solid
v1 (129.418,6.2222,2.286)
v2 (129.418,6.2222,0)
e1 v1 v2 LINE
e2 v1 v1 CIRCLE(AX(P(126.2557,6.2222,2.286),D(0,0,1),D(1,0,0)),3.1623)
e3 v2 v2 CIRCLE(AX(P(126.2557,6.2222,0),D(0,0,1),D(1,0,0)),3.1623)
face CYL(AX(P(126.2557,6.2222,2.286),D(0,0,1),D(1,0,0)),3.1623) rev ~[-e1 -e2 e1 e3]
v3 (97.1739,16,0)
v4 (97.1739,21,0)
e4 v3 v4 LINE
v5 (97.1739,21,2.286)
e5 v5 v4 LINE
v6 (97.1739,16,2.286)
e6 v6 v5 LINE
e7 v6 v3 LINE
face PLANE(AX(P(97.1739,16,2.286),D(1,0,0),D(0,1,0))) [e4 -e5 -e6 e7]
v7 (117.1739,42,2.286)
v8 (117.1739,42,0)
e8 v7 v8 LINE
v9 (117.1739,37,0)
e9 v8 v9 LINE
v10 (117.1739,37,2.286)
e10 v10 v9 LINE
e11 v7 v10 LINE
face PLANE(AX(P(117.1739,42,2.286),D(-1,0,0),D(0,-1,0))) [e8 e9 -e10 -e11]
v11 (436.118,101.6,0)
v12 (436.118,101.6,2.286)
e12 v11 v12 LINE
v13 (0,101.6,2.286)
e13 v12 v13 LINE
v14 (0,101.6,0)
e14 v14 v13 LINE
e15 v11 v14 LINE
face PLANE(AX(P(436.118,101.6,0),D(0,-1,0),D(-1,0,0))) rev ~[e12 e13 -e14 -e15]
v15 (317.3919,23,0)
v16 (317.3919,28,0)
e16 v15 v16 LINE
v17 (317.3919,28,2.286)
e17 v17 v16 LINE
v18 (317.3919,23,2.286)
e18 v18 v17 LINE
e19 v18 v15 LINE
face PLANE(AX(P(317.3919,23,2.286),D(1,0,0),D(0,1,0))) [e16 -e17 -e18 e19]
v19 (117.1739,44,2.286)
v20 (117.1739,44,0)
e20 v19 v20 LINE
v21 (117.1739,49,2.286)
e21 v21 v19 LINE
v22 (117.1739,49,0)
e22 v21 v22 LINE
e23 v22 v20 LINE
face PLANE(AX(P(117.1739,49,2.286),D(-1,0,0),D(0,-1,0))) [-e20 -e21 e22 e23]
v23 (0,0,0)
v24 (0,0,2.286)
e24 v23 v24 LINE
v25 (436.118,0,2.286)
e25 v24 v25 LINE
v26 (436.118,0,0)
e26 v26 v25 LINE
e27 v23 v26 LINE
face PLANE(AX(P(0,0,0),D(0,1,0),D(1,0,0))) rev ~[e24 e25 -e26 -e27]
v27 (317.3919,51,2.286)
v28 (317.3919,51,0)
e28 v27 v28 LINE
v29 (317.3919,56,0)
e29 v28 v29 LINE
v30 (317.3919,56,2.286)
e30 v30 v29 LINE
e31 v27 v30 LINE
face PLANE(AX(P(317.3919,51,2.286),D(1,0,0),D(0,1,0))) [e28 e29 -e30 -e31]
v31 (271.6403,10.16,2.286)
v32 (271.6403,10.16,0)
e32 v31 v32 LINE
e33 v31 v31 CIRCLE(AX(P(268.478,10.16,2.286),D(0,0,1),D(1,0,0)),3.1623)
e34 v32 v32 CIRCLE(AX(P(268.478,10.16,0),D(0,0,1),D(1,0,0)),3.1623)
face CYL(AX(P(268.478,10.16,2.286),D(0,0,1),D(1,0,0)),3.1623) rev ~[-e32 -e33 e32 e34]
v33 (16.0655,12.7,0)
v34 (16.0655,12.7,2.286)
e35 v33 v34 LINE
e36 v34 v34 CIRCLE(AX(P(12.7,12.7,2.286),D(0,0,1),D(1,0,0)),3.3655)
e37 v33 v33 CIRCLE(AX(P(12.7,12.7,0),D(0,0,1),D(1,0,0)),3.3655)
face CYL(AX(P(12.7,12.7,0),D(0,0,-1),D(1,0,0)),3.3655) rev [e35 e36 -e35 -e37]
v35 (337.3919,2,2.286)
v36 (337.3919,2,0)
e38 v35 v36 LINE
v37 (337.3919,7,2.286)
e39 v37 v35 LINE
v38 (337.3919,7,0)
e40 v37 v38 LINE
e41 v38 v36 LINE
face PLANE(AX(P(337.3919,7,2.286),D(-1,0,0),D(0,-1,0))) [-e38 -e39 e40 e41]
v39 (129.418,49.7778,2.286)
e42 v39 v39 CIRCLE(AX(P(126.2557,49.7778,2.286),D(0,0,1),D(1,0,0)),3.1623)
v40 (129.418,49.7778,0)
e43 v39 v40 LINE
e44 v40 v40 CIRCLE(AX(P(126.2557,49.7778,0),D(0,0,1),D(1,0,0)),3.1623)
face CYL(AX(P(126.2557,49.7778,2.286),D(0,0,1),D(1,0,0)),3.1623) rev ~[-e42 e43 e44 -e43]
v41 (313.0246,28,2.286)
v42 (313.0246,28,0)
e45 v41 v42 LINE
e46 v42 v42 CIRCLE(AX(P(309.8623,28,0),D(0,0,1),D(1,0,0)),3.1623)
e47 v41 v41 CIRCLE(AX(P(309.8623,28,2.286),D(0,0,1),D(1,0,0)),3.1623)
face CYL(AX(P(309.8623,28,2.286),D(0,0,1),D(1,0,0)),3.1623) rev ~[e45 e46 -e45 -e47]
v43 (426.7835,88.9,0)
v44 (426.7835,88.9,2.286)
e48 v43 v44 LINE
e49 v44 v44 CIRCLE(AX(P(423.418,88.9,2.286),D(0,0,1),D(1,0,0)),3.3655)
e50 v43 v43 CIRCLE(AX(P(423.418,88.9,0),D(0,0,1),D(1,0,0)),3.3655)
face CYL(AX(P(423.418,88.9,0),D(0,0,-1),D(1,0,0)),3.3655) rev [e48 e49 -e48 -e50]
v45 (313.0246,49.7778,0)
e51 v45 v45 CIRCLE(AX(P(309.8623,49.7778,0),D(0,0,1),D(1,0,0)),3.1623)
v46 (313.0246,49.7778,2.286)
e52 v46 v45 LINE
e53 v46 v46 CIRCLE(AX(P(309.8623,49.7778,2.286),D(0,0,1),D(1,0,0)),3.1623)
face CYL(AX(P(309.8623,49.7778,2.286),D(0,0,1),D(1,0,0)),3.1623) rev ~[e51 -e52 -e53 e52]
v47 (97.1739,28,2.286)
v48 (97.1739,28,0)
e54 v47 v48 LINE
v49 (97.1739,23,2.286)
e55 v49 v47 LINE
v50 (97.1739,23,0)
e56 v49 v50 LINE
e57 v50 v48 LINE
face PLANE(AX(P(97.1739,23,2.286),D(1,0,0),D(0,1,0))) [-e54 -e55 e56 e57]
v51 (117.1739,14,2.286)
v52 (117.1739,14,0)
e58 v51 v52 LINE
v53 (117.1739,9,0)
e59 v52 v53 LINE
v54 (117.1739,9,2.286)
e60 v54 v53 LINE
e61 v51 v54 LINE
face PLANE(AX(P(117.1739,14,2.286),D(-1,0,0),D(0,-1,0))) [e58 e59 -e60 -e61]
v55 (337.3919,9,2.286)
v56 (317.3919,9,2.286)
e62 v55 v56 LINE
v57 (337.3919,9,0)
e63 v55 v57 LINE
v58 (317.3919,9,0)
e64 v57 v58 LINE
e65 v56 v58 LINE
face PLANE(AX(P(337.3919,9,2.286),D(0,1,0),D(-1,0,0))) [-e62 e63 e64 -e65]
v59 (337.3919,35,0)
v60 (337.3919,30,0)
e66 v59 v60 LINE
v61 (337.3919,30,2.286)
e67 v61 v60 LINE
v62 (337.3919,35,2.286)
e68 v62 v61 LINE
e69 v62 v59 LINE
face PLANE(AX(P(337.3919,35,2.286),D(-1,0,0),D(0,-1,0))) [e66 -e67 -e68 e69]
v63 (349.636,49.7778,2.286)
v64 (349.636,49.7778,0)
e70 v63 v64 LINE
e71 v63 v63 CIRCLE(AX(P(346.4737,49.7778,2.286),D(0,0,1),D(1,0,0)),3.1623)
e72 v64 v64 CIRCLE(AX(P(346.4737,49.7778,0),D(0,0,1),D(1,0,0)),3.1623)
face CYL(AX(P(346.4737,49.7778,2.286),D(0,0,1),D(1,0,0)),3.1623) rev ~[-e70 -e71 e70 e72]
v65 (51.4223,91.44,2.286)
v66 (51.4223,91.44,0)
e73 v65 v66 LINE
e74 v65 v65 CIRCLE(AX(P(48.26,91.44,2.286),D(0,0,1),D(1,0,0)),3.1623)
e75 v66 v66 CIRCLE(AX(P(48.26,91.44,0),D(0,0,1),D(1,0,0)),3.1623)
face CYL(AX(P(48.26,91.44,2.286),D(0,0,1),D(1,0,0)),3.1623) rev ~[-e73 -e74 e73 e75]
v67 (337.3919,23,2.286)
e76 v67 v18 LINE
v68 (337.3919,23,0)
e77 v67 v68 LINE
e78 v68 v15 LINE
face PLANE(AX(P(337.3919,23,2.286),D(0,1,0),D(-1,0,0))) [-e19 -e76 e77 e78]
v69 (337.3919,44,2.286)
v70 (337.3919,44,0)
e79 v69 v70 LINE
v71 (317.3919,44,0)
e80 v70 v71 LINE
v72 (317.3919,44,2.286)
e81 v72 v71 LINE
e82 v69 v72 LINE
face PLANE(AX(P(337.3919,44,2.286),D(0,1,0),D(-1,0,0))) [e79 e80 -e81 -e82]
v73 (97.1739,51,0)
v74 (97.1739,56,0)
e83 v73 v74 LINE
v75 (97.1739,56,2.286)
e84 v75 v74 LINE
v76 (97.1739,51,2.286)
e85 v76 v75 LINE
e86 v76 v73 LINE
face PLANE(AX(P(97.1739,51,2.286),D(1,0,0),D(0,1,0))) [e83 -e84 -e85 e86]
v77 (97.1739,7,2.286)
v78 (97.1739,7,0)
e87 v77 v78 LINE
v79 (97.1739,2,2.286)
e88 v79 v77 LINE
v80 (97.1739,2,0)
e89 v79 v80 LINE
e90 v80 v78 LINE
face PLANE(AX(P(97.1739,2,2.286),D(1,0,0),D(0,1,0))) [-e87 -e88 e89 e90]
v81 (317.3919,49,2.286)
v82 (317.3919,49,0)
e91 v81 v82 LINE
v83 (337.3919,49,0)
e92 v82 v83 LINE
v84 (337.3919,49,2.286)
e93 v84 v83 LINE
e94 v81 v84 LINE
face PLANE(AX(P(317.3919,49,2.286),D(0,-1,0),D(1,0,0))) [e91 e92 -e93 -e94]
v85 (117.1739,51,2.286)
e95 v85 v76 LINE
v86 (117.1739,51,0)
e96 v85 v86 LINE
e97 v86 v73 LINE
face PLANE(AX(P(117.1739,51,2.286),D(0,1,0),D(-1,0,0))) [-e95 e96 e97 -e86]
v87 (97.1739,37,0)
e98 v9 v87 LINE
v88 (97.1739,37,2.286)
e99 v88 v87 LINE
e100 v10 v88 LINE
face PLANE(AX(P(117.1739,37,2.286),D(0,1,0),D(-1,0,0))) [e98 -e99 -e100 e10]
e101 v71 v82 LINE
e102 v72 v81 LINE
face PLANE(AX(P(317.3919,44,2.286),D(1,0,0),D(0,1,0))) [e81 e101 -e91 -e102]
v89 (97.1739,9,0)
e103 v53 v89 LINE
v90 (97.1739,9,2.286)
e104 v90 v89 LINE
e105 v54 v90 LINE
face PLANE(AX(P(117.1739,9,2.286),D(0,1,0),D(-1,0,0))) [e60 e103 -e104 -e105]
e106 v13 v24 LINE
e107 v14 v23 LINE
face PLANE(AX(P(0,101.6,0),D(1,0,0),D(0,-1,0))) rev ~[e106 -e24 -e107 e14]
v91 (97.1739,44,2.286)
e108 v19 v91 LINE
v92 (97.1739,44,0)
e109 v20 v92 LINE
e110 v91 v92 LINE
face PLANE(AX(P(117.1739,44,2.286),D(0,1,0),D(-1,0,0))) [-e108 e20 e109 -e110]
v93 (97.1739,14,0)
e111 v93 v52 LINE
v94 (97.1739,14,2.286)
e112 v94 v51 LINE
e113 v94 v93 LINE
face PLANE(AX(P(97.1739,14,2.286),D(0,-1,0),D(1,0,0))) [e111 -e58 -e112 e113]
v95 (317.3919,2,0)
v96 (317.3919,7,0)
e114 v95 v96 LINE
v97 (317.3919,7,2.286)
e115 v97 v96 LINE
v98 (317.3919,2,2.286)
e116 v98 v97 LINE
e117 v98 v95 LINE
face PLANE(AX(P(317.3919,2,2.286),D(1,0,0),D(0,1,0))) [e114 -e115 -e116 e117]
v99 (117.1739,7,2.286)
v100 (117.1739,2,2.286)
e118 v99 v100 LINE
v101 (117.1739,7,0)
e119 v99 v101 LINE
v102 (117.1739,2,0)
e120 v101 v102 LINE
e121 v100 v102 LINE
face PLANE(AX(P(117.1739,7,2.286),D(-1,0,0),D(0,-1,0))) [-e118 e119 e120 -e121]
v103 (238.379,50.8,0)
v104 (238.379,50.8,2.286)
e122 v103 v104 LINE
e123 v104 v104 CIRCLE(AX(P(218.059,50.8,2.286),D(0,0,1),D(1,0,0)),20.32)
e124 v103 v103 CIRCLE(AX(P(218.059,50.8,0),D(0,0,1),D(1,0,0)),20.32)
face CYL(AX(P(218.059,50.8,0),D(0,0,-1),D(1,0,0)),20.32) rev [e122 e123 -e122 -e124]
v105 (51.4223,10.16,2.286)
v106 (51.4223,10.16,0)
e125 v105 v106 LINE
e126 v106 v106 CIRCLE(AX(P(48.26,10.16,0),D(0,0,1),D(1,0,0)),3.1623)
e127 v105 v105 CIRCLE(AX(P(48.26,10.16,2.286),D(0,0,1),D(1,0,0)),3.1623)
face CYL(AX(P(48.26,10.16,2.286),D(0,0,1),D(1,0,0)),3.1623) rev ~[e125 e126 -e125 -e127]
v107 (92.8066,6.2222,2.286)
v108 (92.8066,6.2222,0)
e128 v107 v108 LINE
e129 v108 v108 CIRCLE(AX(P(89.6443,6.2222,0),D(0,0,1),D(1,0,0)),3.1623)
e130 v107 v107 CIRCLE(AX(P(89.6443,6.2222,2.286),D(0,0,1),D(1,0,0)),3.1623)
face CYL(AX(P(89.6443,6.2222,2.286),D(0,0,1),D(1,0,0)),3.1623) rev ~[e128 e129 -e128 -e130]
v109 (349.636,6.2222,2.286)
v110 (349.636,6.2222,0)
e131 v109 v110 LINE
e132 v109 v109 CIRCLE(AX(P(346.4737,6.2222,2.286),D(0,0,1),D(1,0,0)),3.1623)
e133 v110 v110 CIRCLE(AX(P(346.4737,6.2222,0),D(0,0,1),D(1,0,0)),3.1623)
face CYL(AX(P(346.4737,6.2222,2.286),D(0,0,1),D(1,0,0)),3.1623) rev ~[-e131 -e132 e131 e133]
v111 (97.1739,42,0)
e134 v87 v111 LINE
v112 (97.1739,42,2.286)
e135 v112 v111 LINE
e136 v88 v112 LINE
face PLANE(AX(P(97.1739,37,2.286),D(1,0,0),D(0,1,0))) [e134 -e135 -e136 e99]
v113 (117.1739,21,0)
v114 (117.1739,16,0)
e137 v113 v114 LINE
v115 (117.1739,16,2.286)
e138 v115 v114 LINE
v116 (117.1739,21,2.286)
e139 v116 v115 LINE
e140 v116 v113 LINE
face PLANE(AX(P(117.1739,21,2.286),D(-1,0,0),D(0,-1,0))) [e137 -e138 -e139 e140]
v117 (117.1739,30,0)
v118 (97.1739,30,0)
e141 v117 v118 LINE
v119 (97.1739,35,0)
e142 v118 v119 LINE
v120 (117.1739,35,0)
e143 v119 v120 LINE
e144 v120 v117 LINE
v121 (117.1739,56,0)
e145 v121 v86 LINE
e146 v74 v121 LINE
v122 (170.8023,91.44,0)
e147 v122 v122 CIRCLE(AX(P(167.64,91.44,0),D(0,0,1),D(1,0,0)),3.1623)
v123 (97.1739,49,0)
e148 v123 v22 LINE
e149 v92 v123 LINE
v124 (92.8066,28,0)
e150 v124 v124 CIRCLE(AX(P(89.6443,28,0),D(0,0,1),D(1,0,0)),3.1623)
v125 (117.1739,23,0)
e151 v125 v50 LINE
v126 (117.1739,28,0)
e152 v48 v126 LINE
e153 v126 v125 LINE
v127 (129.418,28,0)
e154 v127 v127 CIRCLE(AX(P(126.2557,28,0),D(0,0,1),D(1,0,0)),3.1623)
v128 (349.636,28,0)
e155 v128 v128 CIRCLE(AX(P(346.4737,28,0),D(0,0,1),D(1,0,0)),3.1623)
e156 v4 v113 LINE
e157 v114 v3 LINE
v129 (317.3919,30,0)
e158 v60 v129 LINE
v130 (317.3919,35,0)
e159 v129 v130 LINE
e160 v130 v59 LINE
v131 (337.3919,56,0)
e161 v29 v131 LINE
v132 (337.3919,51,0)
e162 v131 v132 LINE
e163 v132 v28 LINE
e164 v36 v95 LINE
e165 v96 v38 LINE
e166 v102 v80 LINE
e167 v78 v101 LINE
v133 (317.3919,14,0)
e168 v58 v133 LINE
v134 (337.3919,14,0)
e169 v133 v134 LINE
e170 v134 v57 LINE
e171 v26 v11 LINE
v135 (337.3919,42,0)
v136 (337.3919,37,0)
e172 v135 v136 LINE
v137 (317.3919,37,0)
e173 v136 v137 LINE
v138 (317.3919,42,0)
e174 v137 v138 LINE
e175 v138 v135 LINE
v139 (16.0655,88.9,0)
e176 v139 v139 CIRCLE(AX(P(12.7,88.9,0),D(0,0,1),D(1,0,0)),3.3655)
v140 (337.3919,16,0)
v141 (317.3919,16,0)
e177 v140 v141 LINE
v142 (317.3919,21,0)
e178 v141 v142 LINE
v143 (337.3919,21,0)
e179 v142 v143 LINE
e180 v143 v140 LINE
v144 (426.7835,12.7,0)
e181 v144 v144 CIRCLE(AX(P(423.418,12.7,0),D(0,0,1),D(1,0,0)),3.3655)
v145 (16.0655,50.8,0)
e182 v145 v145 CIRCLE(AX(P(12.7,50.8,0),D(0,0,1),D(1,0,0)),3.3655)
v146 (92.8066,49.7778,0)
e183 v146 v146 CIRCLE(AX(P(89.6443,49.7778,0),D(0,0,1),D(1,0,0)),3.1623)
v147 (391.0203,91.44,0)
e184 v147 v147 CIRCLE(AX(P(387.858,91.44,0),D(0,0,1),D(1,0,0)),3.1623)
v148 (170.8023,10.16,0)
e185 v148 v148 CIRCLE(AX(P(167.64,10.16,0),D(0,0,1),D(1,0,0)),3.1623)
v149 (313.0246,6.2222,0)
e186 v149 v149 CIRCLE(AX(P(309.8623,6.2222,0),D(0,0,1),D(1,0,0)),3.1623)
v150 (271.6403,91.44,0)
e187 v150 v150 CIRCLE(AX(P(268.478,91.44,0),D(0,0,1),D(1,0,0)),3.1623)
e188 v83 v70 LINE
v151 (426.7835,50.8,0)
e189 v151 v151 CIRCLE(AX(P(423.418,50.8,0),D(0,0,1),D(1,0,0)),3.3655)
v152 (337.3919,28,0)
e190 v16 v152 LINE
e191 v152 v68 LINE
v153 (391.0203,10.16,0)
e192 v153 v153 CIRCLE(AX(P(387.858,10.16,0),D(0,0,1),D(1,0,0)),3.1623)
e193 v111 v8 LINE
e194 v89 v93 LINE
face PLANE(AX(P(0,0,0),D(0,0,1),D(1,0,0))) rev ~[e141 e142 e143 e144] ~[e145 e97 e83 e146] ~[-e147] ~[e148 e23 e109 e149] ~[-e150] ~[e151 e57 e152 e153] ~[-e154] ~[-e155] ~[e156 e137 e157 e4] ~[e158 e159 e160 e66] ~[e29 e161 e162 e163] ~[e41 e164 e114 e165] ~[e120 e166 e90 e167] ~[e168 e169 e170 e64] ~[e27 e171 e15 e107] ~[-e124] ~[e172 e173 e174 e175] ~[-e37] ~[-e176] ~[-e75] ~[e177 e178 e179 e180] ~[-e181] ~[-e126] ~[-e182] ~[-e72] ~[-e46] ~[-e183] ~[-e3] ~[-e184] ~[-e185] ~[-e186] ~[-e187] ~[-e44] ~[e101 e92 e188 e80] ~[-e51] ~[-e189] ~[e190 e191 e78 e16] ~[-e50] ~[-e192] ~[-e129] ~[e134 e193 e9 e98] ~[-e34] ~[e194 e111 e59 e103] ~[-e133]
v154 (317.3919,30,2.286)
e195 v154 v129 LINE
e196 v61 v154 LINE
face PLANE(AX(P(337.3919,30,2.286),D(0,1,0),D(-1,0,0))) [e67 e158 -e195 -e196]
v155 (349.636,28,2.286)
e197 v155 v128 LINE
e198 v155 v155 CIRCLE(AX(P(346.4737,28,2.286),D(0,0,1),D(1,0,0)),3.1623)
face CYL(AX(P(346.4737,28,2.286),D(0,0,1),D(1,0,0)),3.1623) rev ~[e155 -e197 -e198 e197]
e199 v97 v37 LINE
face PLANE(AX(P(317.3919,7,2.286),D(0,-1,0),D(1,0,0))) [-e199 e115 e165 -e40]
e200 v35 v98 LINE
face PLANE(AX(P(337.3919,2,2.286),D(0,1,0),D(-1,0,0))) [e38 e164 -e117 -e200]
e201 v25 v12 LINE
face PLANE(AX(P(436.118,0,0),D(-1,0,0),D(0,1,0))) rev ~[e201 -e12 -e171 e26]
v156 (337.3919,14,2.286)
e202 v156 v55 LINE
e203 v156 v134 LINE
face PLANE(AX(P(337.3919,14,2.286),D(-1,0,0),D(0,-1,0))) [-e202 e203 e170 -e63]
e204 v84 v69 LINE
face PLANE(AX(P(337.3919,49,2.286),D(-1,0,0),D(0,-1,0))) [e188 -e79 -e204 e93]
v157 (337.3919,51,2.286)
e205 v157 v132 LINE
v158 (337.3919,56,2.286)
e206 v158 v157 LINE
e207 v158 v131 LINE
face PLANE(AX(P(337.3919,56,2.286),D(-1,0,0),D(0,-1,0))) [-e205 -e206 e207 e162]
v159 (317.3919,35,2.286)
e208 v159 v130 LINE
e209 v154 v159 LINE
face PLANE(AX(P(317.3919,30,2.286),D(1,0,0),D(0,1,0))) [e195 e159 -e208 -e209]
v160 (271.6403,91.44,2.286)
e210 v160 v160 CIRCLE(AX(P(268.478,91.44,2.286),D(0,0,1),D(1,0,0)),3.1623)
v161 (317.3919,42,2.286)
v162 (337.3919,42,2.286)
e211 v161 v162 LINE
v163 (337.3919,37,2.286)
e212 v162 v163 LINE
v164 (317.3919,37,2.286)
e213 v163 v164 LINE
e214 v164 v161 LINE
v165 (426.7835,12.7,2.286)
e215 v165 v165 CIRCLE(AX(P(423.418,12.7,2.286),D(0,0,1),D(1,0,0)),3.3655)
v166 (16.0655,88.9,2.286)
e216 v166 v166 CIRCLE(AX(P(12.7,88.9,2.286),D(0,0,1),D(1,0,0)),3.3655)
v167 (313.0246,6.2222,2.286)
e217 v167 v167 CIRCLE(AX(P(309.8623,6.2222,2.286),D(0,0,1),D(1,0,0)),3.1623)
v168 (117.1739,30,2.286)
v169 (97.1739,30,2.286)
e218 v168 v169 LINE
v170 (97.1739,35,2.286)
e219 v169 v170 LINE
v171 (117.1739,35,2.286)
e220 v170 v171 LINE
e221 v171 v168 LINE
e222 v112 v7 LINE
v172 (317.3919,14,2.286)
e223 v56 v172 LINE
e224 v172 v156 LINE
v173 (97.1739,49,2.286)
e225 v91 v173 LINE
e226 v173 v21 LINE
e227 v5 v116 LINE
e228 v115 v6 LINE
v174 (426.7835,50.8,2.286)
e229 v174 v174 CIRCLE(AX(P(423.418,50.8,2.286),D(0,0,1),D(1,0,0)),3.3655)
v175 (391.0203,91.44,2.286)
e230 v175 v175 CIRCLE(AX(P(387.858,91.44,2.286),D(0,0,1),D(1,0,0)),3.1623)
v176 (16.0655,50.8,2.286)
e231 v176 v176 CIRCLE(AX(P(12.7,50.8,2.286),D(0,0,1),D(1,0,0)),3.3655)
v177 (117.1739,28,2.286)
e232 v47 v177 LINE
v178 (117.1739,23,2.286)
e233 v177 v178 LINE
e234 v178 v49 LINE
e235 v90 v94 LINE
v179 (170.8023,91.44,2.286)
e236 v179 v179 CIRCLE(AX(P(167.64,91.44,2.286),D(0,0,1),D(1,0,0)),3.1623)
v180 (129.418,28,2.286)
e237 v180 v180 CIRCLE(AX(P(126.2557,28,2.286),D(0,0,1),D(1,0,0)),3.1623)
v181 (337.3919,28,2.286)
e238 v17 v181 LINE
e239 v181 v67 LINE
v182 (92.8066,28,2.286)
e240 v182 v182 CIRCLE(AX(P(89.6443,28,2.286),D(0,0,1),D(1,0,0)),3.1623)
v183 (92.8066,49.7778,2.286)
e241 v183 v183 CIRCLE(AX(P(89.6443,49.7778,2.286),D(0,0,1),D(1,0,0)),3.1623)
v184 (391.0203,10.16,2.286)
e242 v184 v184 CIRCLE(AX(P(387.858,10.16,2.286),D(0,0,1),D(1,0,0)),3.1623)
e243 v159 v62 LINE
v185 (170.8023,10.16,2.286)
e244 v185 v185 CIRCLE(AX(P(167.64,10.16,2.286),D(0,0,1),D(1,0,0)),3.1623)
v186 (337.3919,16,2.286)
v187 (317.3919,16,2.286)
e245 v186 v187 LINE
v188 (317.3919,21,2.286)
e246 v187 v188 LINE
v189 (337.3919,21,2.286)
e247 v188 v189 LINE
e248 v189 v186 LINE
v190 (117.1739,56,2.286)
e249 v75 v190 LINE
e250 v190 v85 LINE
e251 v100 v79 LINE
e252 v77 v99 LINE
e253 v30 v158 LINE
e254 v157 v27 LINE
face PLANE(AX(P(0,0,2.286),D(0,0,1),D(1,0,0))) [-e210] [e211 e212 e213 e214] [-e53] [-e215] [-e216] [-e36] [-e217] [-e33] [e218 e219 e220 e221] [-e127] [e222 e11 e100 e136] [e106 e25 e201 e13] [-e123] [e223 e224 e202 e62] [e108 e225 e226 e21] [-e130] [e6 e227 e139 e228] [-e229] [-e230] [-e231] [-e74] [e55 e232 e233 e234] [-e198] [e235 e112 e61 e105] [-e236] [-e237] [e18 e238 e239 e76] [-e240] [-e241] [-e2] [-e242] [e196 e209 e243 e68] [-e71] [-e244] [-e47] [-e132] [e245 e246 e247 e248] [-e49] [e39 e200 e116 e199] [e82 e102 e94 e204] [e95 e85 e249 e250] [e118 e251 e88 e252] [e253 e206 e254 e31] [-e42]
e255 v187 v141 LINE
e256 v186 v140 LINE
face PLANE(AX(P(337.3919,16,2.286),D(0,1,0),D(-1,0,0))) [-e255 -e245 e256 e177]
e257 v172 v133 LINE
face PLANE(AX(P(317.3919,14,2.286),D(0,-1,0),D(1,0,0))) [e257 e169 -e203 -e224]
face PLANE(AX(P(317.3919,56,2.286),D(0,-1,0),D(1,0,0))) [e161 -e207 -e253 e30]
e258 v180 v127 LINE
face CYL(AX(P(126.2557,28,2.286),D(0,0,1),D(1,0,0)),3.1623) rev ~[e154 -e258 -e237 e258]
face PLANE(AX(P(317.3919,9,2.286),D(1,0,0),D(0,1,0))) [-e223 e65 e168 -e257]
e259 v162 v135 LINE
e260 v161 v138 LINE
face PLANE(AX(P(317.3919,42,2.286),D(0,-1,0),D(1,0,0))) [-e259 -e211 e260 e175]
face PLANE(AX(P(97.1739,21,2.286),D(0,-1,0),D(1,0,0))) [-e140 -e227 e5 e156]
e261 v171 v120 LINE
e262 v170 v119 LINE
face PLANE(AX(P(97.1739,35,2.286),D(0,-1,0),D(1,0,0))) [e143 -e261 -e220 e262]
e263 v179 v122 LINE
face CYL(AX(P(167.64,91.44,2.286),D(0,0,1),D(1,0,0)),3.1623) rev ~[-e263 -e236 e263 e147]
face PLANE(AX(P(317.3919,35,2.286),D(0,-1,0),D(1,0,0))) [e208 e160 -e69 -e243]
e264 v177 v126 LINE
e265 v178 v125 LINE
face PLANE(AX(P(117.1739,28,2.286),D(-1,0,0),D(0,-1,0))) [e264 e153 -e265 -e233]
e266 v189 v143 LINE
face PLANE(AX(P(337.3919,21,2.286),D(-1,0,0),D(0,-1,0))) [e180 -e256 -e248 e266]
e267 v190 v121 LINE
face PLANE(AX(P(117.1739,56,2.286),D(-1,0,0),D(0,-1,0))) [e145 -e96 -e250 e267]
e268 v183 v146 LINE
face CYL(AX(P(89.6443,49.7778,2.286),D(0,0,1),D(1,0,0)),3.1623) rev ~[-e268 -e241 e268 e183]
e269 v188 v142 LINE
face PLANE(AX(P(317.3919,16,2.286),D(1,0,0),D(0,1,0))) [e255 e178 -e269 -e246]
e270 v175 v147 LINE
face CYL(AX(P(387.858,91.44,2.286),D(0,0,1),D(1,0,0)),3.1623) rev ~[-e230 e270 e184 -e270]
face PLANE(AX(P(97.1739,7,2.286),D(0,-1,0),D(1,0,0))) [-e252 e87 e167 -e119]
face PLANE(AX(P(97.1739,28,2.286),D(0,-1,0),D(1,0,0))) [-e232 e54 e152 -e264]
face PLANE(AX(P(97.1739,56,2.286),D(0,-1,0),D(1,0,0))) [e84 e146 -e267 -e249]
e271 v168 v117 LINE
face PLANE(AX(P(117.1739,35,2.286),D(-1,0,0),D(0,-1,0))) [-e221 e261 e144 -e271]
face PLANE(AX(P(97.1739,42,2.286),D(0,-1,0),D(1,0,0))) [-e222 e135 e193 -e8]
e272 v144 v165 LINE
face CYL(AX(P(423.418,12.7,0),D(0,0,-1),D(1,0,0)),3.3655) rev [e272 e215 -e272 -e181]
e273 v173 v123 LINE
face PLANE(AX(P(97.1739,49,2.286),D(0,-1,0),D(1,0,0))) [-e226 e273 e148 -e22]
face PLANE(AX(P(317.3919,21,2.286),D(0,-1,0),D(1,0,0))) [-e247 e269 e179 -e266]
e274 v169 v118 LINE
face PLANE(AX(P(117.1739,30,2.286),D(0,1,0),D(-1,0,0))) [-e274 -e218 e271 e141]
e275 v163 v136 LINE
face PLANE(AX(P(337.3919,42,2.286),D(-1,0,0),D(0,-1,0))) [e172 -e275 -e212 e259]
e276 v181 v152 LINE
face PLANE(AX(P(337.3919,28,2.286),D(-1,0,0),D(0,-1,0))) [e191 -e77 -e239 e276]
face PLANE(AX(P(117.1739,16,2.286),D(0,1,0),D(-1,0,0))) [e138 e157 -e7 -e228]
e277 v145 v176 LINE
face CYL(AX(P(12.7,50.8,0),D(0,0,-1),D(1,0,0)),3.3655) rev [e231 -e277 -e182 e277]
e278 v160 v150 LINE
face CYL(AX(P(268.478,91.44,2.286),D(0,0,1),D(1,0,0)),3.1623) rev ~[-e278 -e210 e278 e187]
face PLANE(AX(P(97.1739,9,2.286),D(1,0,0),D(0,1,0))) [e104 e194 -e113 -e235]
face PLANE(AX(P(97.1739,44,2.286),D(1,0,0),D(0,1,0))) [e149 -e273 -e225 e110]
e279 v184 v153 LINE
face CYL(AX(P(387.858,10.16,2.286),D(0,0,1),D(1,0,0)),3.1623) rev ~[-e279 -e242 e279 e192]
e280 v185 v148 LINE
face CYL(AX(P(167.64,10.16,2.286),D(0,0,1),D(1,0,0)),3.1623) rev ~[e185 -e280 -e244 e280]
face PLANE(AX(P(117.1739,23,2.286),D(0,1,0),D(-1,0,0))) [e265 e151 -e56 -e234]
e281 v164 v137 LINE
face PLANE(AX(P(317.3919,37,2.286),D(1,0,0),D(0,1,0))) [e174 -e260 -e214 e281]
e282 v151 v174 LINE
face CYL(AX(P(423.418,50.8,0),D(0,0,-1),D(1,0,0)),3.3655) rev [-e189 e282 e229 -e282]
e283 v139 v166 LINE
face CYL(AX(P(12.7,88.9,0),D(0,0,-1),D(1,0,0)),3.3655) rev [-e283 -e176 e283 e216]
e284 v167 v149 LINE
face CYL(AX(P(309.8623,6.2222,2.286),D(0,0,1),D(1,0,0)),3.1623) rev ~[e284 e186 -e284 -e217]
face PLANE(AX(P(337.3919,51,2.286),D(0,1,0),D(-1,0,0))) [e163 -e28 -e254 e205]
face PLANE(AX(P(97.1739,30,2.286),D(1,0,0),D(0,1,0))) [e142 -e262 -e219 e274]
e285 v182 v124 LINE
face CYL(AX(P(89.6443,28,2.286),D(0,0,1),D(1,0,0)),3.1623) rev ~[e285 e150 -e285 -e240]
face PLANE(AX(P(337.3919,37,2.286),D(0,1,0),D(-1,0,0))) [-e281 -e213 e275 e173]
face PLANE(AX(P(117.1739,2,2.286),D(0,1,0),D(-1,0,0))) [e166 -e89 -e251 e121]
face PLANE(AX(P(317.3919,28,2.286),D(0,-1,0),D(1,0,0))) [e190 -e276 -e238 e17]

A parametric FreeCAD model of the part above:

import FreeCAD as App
import Part
import Sketcher
from FreeCAD import Vector
Q = App.Units.Quantity

doc = App.newDocument("Part")
params = doc.addObject("Spreadsheet::Sheet", "Params")
for row, (alias, value) in enumerate([
    ("sketch1_diameter", "1.6 in"),
    ("sketch1_height", "4 in"),
    ("sketch1_diameter2", "0.265 in"),
    ("sketch1_width", "17.17 in"),
    ("pad1_length", "0.09 in"),
    ("sketch2_diameter", "0.249 in"),
    ("pocket1_length", "0.09 in"),
    ("sketch3_diameter", "0.249 in"),
    ("pocket2_length", "0.249 in"),
], start=1):
    params.set(f"A{row}", alias)
    params.set(f"B{row}", "=" + value)
    params.setAlias(f"B{row}", alias)

body = doc.addObject("PartDesign::Body", "Body")

sketch1 = body.newObject("Sketcher::SketchObject", "Sketch")
sketch1.AttachmentSupport = (doc.getObject("XY_Plane"), [""])
sketch1.MapMode = "FlatFace"
sketch1.addGeometry([
    Part.LineSegment(Vector(0, 101.6, 0), Vector(0, 0, 0)),
    Part.LineSegment(Vector(0, 0, 0), Vector(436.118, 0, 0)),
    Part.LineSegment(Vector(436.118, 0, 0), Vector(436.118, 101.6, 0)),
    Part.LineSegment(Vector(436.118, 101.6, 0), Vector(0, 101.6, 0)),
    Part.Circle(Vector(12.7, 12.7, 0), Vector(0, 0, 1), 3.3655),
    Part.Circle(Vector(12.7, 50.8, 0), Vector(0, 0, 1), 3.3655),
    Part.Circle(Vector(423.418, 12.7, 0), Vector(0, 0, 1), 3.3655),
    Part.Circle(Vector(218.059, 50.8, 0), Vector(0, 0, 1), 20.32),
    Part.Circle(Vector(423.418, 50.8, 0), Vector(0, 0, 1), 3.3655),
    Part.Circle(Vector(12.7, 88.9, 0), Vector(0, 0, 1), 3.3655),
    Part.Circle(Vector(423.418, 88.9, 0), Vector(0, 0, 1), 3.3655),
], False)
sketch1.addConstraint([
    Sketcher.Constraint("Coincident", 0, 2, 1, 1),
    Sketcher.Constraint("Coincident", 1, 2, 2, 1),
    Sketcher.Constraint("Coincident", 2, 2, 3, 1),
    Sketcher.Constraint("Coincident", 3, 2, 0, 1),
    Sketcher.Constraint("Vertical", 0),
    Sketcher.Constraint("Horizontal", 1),
    Sketcher.Constraint("Vertical", 2),
    Sketcher.Constraint("Horizontal", 3),
    Sketcher.Constraint("Coincident", 0, 2, -1, 1),
    Sketcher.Constraint("Equal", 4, 5),
    Sketcher.Constraint("Equal", 5, 6),
    Sketcher.Constraint("Equal", 6, 8),
    Sketcher.Constraint("Equal", 8, 9),
    Sketcher.Constraint("Equal", 9, 10),
    Sketcher.Constraint("Horizontal", 4, 3, 6, 3),
    Sketcher.Constraint("Horizontal", 5, 3, 7, 3),
    Sketcher.Constraint("Horizontal", 7, 3, 8, 3),
    Sketcher.Constraint("Horizontal", 9, 3, 10, 3),
    Sketcher.Constraint("Vertical", 4, 3, 5, 3),
    Sketcher.Constraint("Vertical", 6, 3, 8, 3),
    Sketcher.Constraint("Vertical", 5, 3, 9, 3),
    Sketcher.Constraint("Vertical", 8, 3, 10, 3),
    Sketcher.Constraint("Diameter", 7, Q("1.6 in")),
    Sketcher.Constraint("DistanceY", 0, 2, 0, 1, Q("4 in")),
    Sketcher.Constraint("Diameter", 4, Q("0.265 in")),
    Sketcher.Constraint("DistanceY", -1, 1, 5, 3, Q("2 in")),
    Sketcher.Constraint("DistanceX", 1, 1, 1, 2, Q("17.17 in")),
    Sketcher.Constraint("DistanceX", -1, 1, 4, 3, Q("0.5 in")),
    Sketcher.Constraint("DistanceY", -1, 1, 4, 3, Q("0.5 in")),
    Sketcher.Constraint("DistanceY", 5, 3, 9, 3, Q("1.5 in")),
    Sketcher.Constraint("DistanceX", 6, 3, 1, 2, Q("0.5 in")),
    Sketcher.Constraint("DistanceX", -1, 1, 7, 3, Q("8.585 in")),
])
sketch1.setExpression("Constraints[22]", "Params.sketch1_diameter")
sketch1.setExpression("Constraints[23]", "Params.sketch1_height")
sketch1.setExpression("Constraints[24]", "Params.sketch1_diameter2")
sketch1.setExpression("Constraints[26]", "Params.sketch1_width")
pad1 = body.newObject("PartDesign::Pad", "Pad")
pad1.Profile = sketch1
pad1.setExpression("Length", "Params.pad1_length")

sketch2 = body.newObject("Sketcher::SketchObject", "Sketch001")
sketch2.AttachmentSupport = (doc.getObject("XY_Plane"), [""])
sketch2.MapMode = "FlatFace"
sketch2.AttachmentOffset = App.Placement(Vector(0, 0, 0.09 * 25.4), App.Rotation())
sketch2.addGeometry([
    Part.LineSegment(Vector(117.1739, 7, 0), Vector(97.1739, 7, 0)),
    Part.LineSegment(Vector(97.1739, 7, 0), Vector(97.1739, 2, 0)),
    Part.LineSegment(Vector(97.1739, 2, 0), Vector(117.1739, 2, 0)),
    Part.LineSegment(Vector(117.1739, 2, 0), Vector(117.1739, 7, 0)),
    Part.LineSegment(Vector(117.1739, 14, 0), Vector(97.1739, 14, 0)),
    Part.LineSegment(Vector(97.1739, 14, 0), Vector(97.1739, 9, 0)),
    Part.LineSegment(Vector(97.1739, 9, 0), Vector(117.1739, 9, 0)),
    Part.LineSegment(Vector(117.1739, 9, 0), Vector(117.1739, 14, 0)),
    Part.LineSegment(Vector(117.1739, 21, 0), Vector(97.1739, 21, 0)),
    Part.LineSegment(Vector(97.1739, 21, 0), Vector(97.1739, 16, 0)),
    Part.LineSegment(Vector(97.1739, 16, 0), Vector(117.1739, 16, 0)),
    Part.LineSegment(Vector(117.1739, 16, 0), Vector(117.1739, 21, 0)),
    Part.LineSegment(Vector(117.1739, 28, 0), Vector(97.1739, 28, 0)),
    Part.LineSegment(Vector(97.1739, 28, 0), Vector(97.1739, 23, 0)),
    Part.LineSegment(Vector(97.1739, 23, 0), Vector(117.1739, 23, 0)),
    Part.LineSegment(Vector(117.1739, 23, 0), Vector(117.1739, 28, 0)),
    Part.LineSegment(Vector(117.1739, 35, 0), Vector(97.1739, 35, 0)),
    Part.LineSegment(Vector(97.1739, 35, 0), Vector(97.1739, 30, 0)),
    Part.LineSegment(Vector(97.1739, 30, 0), Vector(117.1739, 30, 0)),
    Part.LineSegment(Vector(117.1739, 30, 0), Vector(117.1739, 35, 0)),
    Part.LineSegment(Vector(117.1739, 42, 0), Vector(97.1739, 42, 0)),
    Part.LineSegment(Vector(97.1739, 42, 0), Vector(97.1739, 37, 0)),
    Part.LineSegment(Vector(97.1739, 37, 0), Vector(117.1739, 37, 0)),
    Part.LineSegment(Vector(117.1739, 37, 0), Vector(117.1739, 42, 0)),
    Part.Circle(Vector(126.2557, 6.2222, 0), Vector(0, 0, 1), 3.1623),
    Part.Circle(Vector(126.2557, 28, 0), Vector(0, 0, 1), 3.1623),
    Part.Circle(Vector(126.2557, 49.7778, 0), Vector(0, 0, 1), 3.1623),
    Part.Circle(Vector(89.6443, 49.7778, 0), Vector(0, 0, 1), 3.1623),
    Part.Circle(Vector(89.6443, 6.2222, 0), Vector(0, 0, 1), 3.1623),
    Part.Circle(Vector(89.6443, 28, 0), Vector(0, 0, 1), 3.1623),
    Part.LineSegment(Vector(97.1739, 44, 0), Vector(117.1739, 44, 0)),
    Part.LineSegment(Vector(117.1739, 44, 0), Vector(117.1739, 49, 0)),
    Part.LineSegment(Vector(117.1739, 49, 0), Vector(97.1739, 49, 0)),
    Part.LineSegment(Vector(97.1739, 49, 0), Vector(97.1739, 44, 0)),
    Part.LineSegment(Vector(97.1739, 51, 0), Vector(117.1739, 51, 0)),
    Part.LineSegment(Vector(117.1739, 51, 0), Vector(117.1739, 56, 0)),
    Part.LineSegment(Vector(117.1739, 56, 0), Vector(97.1739, 56, 0)),
    Part.LineSegment(Vector(97.1739, 56, 0), Vector(97.1739, 51, 0)),
    Part.Circle(Vector(48.26, 91.44, 0), Vector(0, 0, 1), 3.1623),
    Part.Circle(Vector(167.64, 91.44, 0), Vector(0, 0, 1), 3.1623),
    Part.Circle(Vector(48.26, 10.16, 0), Vector(0, 0, 1), 3.1623),
    Part.Circle(Vector(167.64, 10.16, 0), Vector(0, 0, 1), 3.1623),
], False)
sketch2.addConstraint([
    Sketcher.Constraint("Coincident", 0, 2, 1, 1),
    Sketcher.Constraint("Coincident", 1, 2, 2, 1),
    Sketcher.Constraint("Coincident", 2, 2, 3, 1),
    Sketcher.Constraint("Coincident", 3, 2, 0, 1),
    Sketcher.Constraint("Coincident", 4, 2, 5, 1),
    Sketcher.Constraint("Coincident", 5, 2, 6, 1),
    Sketcher.Constraint("Coincident", 6, 2, 7, 1),
    Sketcher.Constraint("Coincident", 7, 2, 4, 1),
    Sketcher.Constraint("Coincident", 8, 2, 9, 1),
    Sketcher.Constraint("Coincident", 9, 2, 10, 1),
    Sketcher.Constraint("Coincident", 10, 2, 11, 1),
    Sketcher.Constraint("Coincident", 11, 2, 8, 1),
    Sketcher.Constraint("Coincident", 12, 2, 13, 1),
    Sketcher.Constraint("Coincident", 13, 2, 14, 1),
    Sketcher.Constraint("Coincident", 14, 2, 15, 1),
    Sketcher.Constraint("Coincident", 15, 2, 12, 1),
    Sketcher.Constraint("Coincident", 16, 2, 17, 1),
    Sketcher.Constraint("Coincident", 17, 2, 18, 1),
    Sketcher.Constraint("Coincident", 18, 2, 19, 1),
    Sketcher.Constraint("Coincident", 19, 2, 16, 1),
    Sketcher.Constraint("Coincident", 20, 2, 21, 1),
    Sketcher.Constraint("Coincident", 21, 2, 22, 1),
    Sketcher.Constraint("Coincident", 22, 2, 23, 1),
    Sketcher.Constraint("Coincident", 23, 2, 20, 1),
    Sketcher.Constraint("Coincident", 30, 2, 31, 1),
    Sketcher.Constraint("Coincident", 31, 2, 32, 1),
    Sketcher.Constraint("Coincident", 32, 2, 33, 1),
    Sketcher.Constraint("Coincident", 33, 2, 30, 1),
    Sketcher.Constraint("Coincident", 34, 2, 35, 1),
    Sketcher.Constraint("Coincident", 35, 2, 36, 1),
    Sketcher.Constraint("Coincident", 36, 2, 37, 1),
    Sketcher.Constraint("Coincident", 37, 2, 34, 1),
    Sketcher.Constraint("Horizontal", 0),
    Sketcher.Constraint("Vertical", 1),
    Sketcher.Constraint("Horizontal", 2),
    Sketcher.Constraint("Vertical", 3),
    Sketcher.Constraint("Horizontal", 4),
    Sketcher.Constraint("Vertical", 5),
    Sketcher.Constraint("Horizontal", 6),
    Sketcher.Constraint("Vertical", 7),
    Sketcher.Constraint("Horizontal", 8),
    Sketcher.Constraint("Vertical", 9),
    Sketcher.Constraint("Horizontal", 10),
    Sketcher.Constraint("Vertical", 11),
    Sketcher.Constraint("Horizontal", 12),
    Sketcher.Constraint("Vertical", 13),
    Sketcher.Constraint("Horizontal", 14),
    Sketcher.Constraint("Vertical", 15),
    Sketcher.Constraint("Horizontal", 16),
    Sketcher.Constraint("Vertical", 17),
    Sketcher.Constraint("Horizontal", 18),
    Sketcher.Constraint("Vertical", 19),
    Sketcher.Constraint("Horizontal", 20),
    Sketcher.Constraint("Vertical", 21),
    Sketcher.Constraint("Horizontal", 22),
    Sketcher.Constraint("Vertical", 23),
    Sketcher.Constraint("Horizontal", 30),
    Sketcher.Constraint("Vertical", 31),
    Sketcher.Constraint("Horizontal", 32),
    Sketcher.Constraint("Vertical", 33),
    Sketcher.Constraint("Horizontal", 34),
    Sketcher.Constraint("Vertical", 35),
    Sketcher.Constraint("Horizontal", 36),
    Sketcher.Constraint("Vertical", 37),
    Sketcher.Constraint("Equal", 24, 25),
    Sketcher.Constraint("Equal", 25, 26),
    Sketcher.Constraint("Equal", 26, 27),
    Sketcher.Constraint("Equal", 27, 28),
    Sketcher.Constraint("Equal", 28, 29),
    Sketcher.Constraint("Equal", 29, 38),
    Sketcher.Constraint("Equal", 38, 39),
    Sketcher.Constraint("Equal", 39, 40),
    Sketcher.Constraint("Equal", 40, 41),
    Sketcher.Constraint("Horizontal", 26, 3, 27, 3),
    Sketcher.Constraint("Horizontal", 24, 3, 28, 3),
    Sketcher.Constraint("Horizontal", 25, 3, 29, 3),
    Sketcher.Constraint("Horizontal", 38, 3, 39, 3),
    Sketcher.Constraint("Horizontal", 40, 3, 41, 3),
    Sketcher.Constraint("Horizontal", 29, 3, 12, 2),
    Sketcher.Constraint("Vertical", 24, 3, 25, 3),
    Sketcher.Constraint("Vertical", 25, 3, 26, 3),
    Sketcher.Constraint("Vertical", 27, 3, 28, 3),
    Sketcher.Constraint("Vertical", 28, 3, 29, 3),
    Sketcher.Constraint("Vertical", 38, 3, 40, 3),
    Sketcher.Constraint("Vertical", 39, 3, 41, 3),
    Sketcher.Constraint("Vertical", 1, 2, 4, 2),
    Sketcher.Constraint("Vertical", 3, 2, 6, 2),
    Sketcher.Constraint("Vertical", 5, 2, 8, 2),
    Sketcher.Constraint("Vertical", 7, 2, 10, 2),
    Sketcher.Constraint("Vertical", 9, 2, 12, 2),
    Sketcher.Constraint("Vertical", 11, 2, 14, 2),
    Sketcher.Constraint("Vertical", 13, 2, 16, 2),
    Sketcher.Constraint("Vertical", 15, 2, 18, 2),
    Sketcher.Constraint("Vertical", 17, 2, 20, 2),
    Sketcher.Constraint("Vertical", 19, 2, 22, 2),
    Sketcher.Constraint("Vertical", 23, 2, 30, 2),
    Sketcher.Constraint("Vertical", 21, 2, 32, 2),
    Sketcher.Constraint("Vertical", 31, 2, 34, 2),
    Sketcher.Constraint("Vertical", 33, 2, 36, 2),
    Sketcher.Constraint("Equal", 3, 5),
    Sketcher.Constraint("Equal", 7, 9),
    Sketcher.Constraint("Equal", 11, 13),
    Sketcher.Constraint("Equal", 15, 17),
    Sketcher.Constraint("Equal", 19, 21),
    Sketcher.Constraint("Equal", 23, 31),
    Sketcher.Constraint("Equal", 33, 35),
    Sketcher.Constraint("Diameter", 24, Q("0.249 in")),
    Sketcher.Constraint("DistanceY", -1, 1, 40, 3, Q("0.4 in")),
    Sketcher.Constraint("DistanceX", 0, 2, 0, 1, Q("0.7874 in")),
    Sketcher.Constraint("DistanceY", 1, 2, 1, 1, 5.0),
    Sketcher.Constraint("DistanceX", -1, 1, 38, 3, Q("1.9 in")),
    Sketcher.Constraint("DistanceY", -1, 1, 38, 3, Q("3.6 in")),
    Sketcher.Constraint("DistanceX", -1, 1, 39, 3, Q("6.6 in")),
    Sketcher.Constraint("DistanceY", -1, 1, 0, 2, Q("0.2756 in")),
    Sketcher.Constraint("DistanceY", 0, 2, 4, 2, Q("0.2756 in")),
    Sketcher.Constraint("DistanceY", 4, 2, 8, 2, Q("0.2756 in")),
    Sketcher.Constraint("DistanceY", 8, 2, 29, 3, Q("0.2756 in")),
    Sketcher.Constraint("DistanceY", 12, 2, 16, 2, Q("0.2756 in")),
    Sketcher.Constraint("DistanceY", 16, 2, 20, 2, Q("0.2756 in")),
    Sketcher.Constraint("DistanceY", 22, 2, 30, 2, Q("0.2756 in")),
    Sketcher.Constraint("DistanceY", 30, 2, 34, 2, Q("0.2756 in")),
    Sketcher.Constraint("DistanceY", -1, 1, 24, 3, 6.2222),
    Sketcher.Constraint("DistanceX", 2, 2, 24, 3, 9.0818),
    Sketcher.Constraint("DistanceY", 26, 3, 35, 2, 6.2222),
    Sketcher.Constraint("DistanceX", -1, 1, 24, 3, Q("4.9707 in")),
    Sketcher.Constraint("DistanceX", -1, 1, 27, 3, Q("3.5293 in")),
])
sketch2.setExpression("Constraints[106]", "Params.sketch2_diameter")
pocket1 = body.newObject("PartDesign::Pocket", "Pocket")
pocket1.Profile = sketch2
pocket1.setExpression("Length", "Params.pocket1_length")

sketch3 = body.newObject("Sketcher::SketchObject", "Sketch002")
sketch3.AttachmentSupport = (doc.getObject("XY_Plane"), [""])
sketch3.MapMode = "FlatFace"
sketch3.AttachmentOffset = App.Placement(Vector(0, 0, 0.09 * 25.4), App.Rotation())
sketch3.addGeometry([
    Part.LineSegment(Vector(337.3919, 7, 0), Vector(317.3919, 7, 0)),
    Part.LineSegment(Vector(317.3919, 7, 0), Vector(317.3919, 2, 0)),
    Part.LineSegment(Vector(317.3919, 2, 0), Vector(337.3919, 2, 0)),
    Part.LineSegment(Vector(337.3919, 2, 0), Vector(337.3919, 7, 0)),
    Part.LineSegment(Vector(337.3919, 14, 0), Vector(317.3919, 14, 0)),
    Part.LineSegment(Vector(317.3919, 14, 0), Vector(317.3919, 9, 0)),
    Part.LineSegment(Vector(317.3919, 9, 0), Vector(337.3919, 9, 0)),
    Part.LineSegment(Vector(337.3919, 9, 0), Vector(337.3919, 14, 0)),
    Part.LineSegment(Vector(337.3919, 21, 0), Vector(317.3919, 21, 0)),
    Part.LineSegment(Vector(317.3919, 21, 0), Vector(317.3919, 16, 0)),
    Part.LineSegment(Vector(317.3919, 16, 0), Vector(337.3919, 16, 0)),
    Part.LineSegment(Vector(337.3919, 16, 0), Vector(337.3919, 21, 0)),
    Part.LineSegment(Vector(337.3919, 28, 0), Vector(317.3919, 28, 0)),
    Part.LineSegment(Vector(317.3919, 28, 0), Vector(317.3919, 23, 0)),
    Part.LineSegment(Vector(317.3919, 23, 0), Vector(337.3919, 23, 0)),
    Part.LineSegment(Vector(337.3919, 23, 0), Vector(337.3919, 28, 0)),
    Part.LineSegment(Vector(337.3919, 35, 0), Vector(317.3919, 35, 0)),
    Part.LineSegment(Vector(317.3919, 35, 0), Vector(317.3919, 30, 0)),
    Part.LineSegment(Vector(317.3919, 30, 0), Vector(337.3919, 30, 0)),
    Part.LineSegment(Vector(337.3919, 30, 0), Vector(337.3919, 35, 0)),
    Part.LineSegment(Vector(337.3919, 42, 0), Vector(317.3919, 42, 0)),
    Part.LineSegment(Vector(317.3919, 42, 0), Vector(317.3919, 37, 0)),
    Part.LineSegment(Vector(317.3919, 37, 0), Vector(337.3919, 37, 0)),
    Part.LineSegment(Vector(337.3919, 37, 0), Vector(337.3919, 42, 0)),
    Part.Circle(Vector(346.4737, 6.2222, 0), Vector(0, 0, 1), 3.1623),
    Part.Circle(Vector(346.4737, 28, 0), Vector(0, 0, 1), 3.1623),
    Part.Circle(Vector(346.4737, 49.7778, 0), Vector(0, 0, 1), 3.1623),
    Part.Circle(Vector(309.8623, 49.7778, 0), Vector(0, 0, 1), 3.1623),
    Part.Circle(Vector(309.8623, 6.2222, 0), Vector(0, 0, 1), 3.1623),
    Part.Circle(Vector(309.8623, 28, 0), Vector(0, 0, 1), 3.1623),
    Part.LineSegment(Vector(317.3919, 44, 0), Vector(337.3919, 44, 0)),
    Part.LineSegment(Vector(337.3919, 44, 0), Vector(337.3919, 49, 0)),
    Part.LineSegment(Vector(337.3919, 49, 0), Vector(317.3919, 49, 0)),
    Part.LineSegment(Vector(317.3919, 49, 0), Vector(317.3919, 44, 0)),
    Part.LineSegment(Vector(317.3919, 51, 0), Vector(337.3919, 51, 0)),
    Part.LineSegment(Vector(337.3919, 51, 0), Vector(337.3919, 56, 0)),
    Part.LineSegment(Vector(337.3919, 56, 0), Vector(317.3919, 56, 0)),
    Part.LineSegment(Vector(317.3919, 56, 0), Vector(317.3919, 51, 0)),
    Part.Circle(Vector(268.478, 91.44, 0), Vector(0, 0, 1), 3.1623),
    Part.Circle(Vector(387.858, 91.44, 0), Vector(0, 0, 1), 3.1623),
    Part.Circle(Vector(268.478, 10.16, 0), Vector(0, 0, 1), 3.1623),
    Part.Circle(Vector(387.858, 10.16, 0), Vector(0, 0, 1), 3.1623),
], False)
sketch3.addConstraint([
    Sketcher.Constraint("Coincident", 0, 2, 1, 1),
    Sketcher.Constraint("Coincident", 1, 2, 2, 1),
    Sketcher.Constraint("Coincident", 2, 2, 3, 1),
    Sketcher.Constraint("Coincident", 3, 2, 0, 1),
    Sketcher.Constraint("Coincident", 4, 2, 5, 1),
    Sketcher.Constraint("Coincident", 5, 2, 6, 1),
    Sketcher.Constraint("Coincident", 6, 2, 7, 1),
    Sketcher.Constraint("Coincident", 7, 2, 4, 1),
    Sketcher.Constraint("Coincident", 8, 2, 9, 1),
    Sketcher.Constraint("Coincident", 9, 2, 10, 1),
    Sketcher.Constraint("Coincident", 10, 2, 11, 1),
    Sketcher.Constraint("Coincident", 11, 2, 8, 1),
    Sketcher.Constraint("Coincident", 12, 2, 13, 1),
    Sketcher.Constraint("Coincident", 13, 2, 14, 1),
    Sketcher.Constraint("Coincident", 14, 2, 15, 1),
    Sketcher.Constraint("Coincident", 15, 2, 12, 1),
    Sketcher.Constraint("Coincident", 16, 2, 17, 1),
    Sketcher.Constraint("Coincident", 17, 2, 18, 1),
    Sketcher.Constraint("Coincident", 18, 2, 19, 1),
    Sketcher.Constraint("Coincident", 19, 2, 16, 1),
    Sketcher.Constraint("Coincident", 20, 2, 21, 1),
    Sketcher.Constraint("Coincident", 21, 2, 22, 1),
    Sketcher.Constraint("Coincident", 22, 2, 23, 1),
    Sketcher.Constraint("Coincident", 23, 2, 20, 1),
    Sketcher.Constraint("Coincident", 30, 2, 31, 1),
    Sketcher.Constraint("Coincident", 31, 2, 32, 1),
    Sketcher.Constraint("Coincident", 32, 2, 33, 1),
    Sketcher.Constraint("Coincident", 33, 2, 30, 1),
    Sketcher.Constraint("Coincident", 34, 2, 35, 1),
    Sketcher.Constraint("Coincident", 35, 2, 36, 1),
    Sketcher.Constraint("Coincident", 36, 2, 37, 1),
    Sketcher.Constraint("Coincident", 37, 2, 34, 1),
    Sketcher.Constraint("Horizontal", 0),
    Sketcher.Constraint("Vertical", 1),
    Sketcher.Constraint("Horizontal", 2),
    Sketcher.Constraint("Vertical", 3),
    Sketcher.Constraint("Horizontal", 4),
    Sketcher.Constraint("Vertical", 5),
    Sketcher.Constraint("Horizontal", 6),
    Sketcher.Constraint("Vertical", 7),
    Sketcher.Constraint("Horizontal", 8),
    Sketcher.Constraint("Vertical", 9),
    Sketcher.Constraint("Horizontal", 10),
    Sketcher.Constraint("Vertical", 11),
    Sketcher.Constraint("Horizontal", 12),
    Sketcher.Constraint("Vertical", 13),
    Sketcher.Constraint("Horizontal", 14),
    Sketcher.Constraint("Vertical", 15),
    Sketcher.Constraint("Horizontal", 16),
    Sketcher.Constraint("Vertical", 17),
    Sketcher.Constraint("Horizontal", 18),
    Sketcher.Constraint("Vertical", 19),
    Sketcher.Constraint("Horizontal", 20),
    Sketcher.Constraint("Vertical", 21),
    Sketcher.Constraint("Horizontal", 22),
    Sketcher.Constraint("Vertical", 23),
    Sketcher.Constraint("Horizontal", 30),
    Sketcher.Constraint("Vertical", 31),
    Sketcher.Constraint("Horizontal", 32),
    Sketcher.Constraint("Vertical", 33),
    Sketcher.Constraint("Horizontal", 34),
    Sketcher.Constraint("Vertical", 35),
    Sketcher.Constraint("Horizontal", 36),
    Sketcher.Constraint("Vertical", 37),
    Sketcher.Constraint("Equal", 24, 25),
    Sketcher.Constraint("Equal", 25, 26),
    Sketcher.Constraint("Equal", 26, 27),
    Sketcher.Constraint("Equal", 27, 28),
    Sketcher.Constraint("Equal", 28, 29),
    Sketcher.Constraint("Equal", 29, 38),
    Sketcher.Constraint("Equal", 38, 39),
    Sketcher.Constraint("Equal", 39, 40),
    Sketcher.Constraint("Equal", 40, 41),
    Sketcher.Constraint("Horizontal", 26, 3, 27, 3),
    Sketcher.Constraint("Horizontal", 24, 3, 28, 3),
    Sketcher.Constraint("Horizontal", 25, 3, 29, 3),
    Sketcher.Constraint("Horizontal", 38, 3, 39, 3),
    Sketcher.Constraint("Horizontal", 40, 3, 41, 3),
    Sketcher.Constraint("Horizontal", 29, 3, 12, 2),
    Sketcher.Constraint("Vertical", 24, 3, 25, 3),
    Sketcher.Constraint("Vertical", 25, 3, 26, 3),
    Sketcher.Constraint("Vertical", 27, 3, 28, 3),
    Sketcher.Constraint("Vertical", 28, 3, 29, 3),
    Sketcher.Constraint("Vertical", 38, 3, 40, 3),
    Sketcher.Constraint("Vertical", 39, 3, 41, 3),
    Sketcher.Constraint("Vertical", 1, 2, 4, 2),
    Sketcher.Constraint("Vertical", 3, 2, 6, 2),
    Sketcher.Constraint("Vertical", 5, 2, 8, 2),
    Sketcher.Constraint("Vertical", 7, 2, 10, 2),
    Sketcher.Constraint("Vertical", 9, 2, 12, 2),
    Sketcher.Constraint("Vertical", 11, 2, 14, 2),
    Sketcher.Constraint("Vertical", 13, 2, 16, 2),
    Sketcher.Constraint("Vertical", 15, 2, 18, 2),
    Sketcher.Constraint("Vertical", 17, 2, 20, 2),
    Sketcher.Constraint("Vertical", 19, 2, 22, 2),
    Sketcher.Constraint("Vertical", 23, 2, 30, 2),
    Sketcher.Constraint("Vertical", 21, 2, 32, 2),
    Sketcher.Constraint("Vertical", 31, 2, 34, 2),
    Sketcher.Constraint("Vertical", 33, 2, 36, 2),
    Sketcher.Constraint("Equal", 3, 5),
    Sketcher.Constraint("Equal", 7, 9),
    Sketcher.Constraint("Equal", 11, 13),
    Sketcher.Constraint("Equal", 15, 17),
    Sketcher.Constraint("Equal", 19, 21),
    Sketcher.Constraint("Equal", 23, 31),
    Sketcher.Constraint("Equal", 33, 35),
    Sketcher.Constraint("Diameter", 24, Q("0.249 in")),
    Sketcher.Constraint("DistanceY", -1, 1, 40, 3, Q("0.4 in")),
    Sketcher.Constraint("DistanceX", 0, 2, 0, 1, Q("0.7874 in")),
    Sketcher.Constraint("DistanceY", 1, 2, 1, 1, 5.0),
    Sketcher.Constraint("DistanceY", -1, 1, 38, 3, Q("3.6 in")),
    Sketcher.Constraint("DistanceY", -1, 1, 0, 2, Q("0.2756 in")),
    Sketcher.Constraint("DistanceY", 0, 2, 4, 2, Q("0.2756 in")),
    Sketcher.Constraint("DistanceY", 4, 2, 8, 2, Q("0.2756 in")),
    Sketcher.Constraint("DistanceY", 8, 2, 29, 3, Q("0.2756 in")),
    Sketcher.Constraint("DistanceY", 12, 2, 16, 2, Q("0.2756 in")),
    Sketcher.Constraint("DistanceY", 16, 2, 20, 2, Q("0.2756 in")),
    Sketcher.Constraint("DistanceY", 22, 2, 30, 2, Q("0.2756 in")),
    Sketcher.Constraint("DistanceY", 30, 2, 34, 2, Q("0.2756 in")),
    Sketcher.Constraint("DistanceY", -1, 1, 24, 3, 6.2222),
    Sketcher.Constraint("DistanceX", -1, 1, 38, 3, Q("10.57 in")),
    Sketcher.Constraint("DistanceX", -1, 1, 39, 3, Q("15.27 in")),
    Sketcher.Constraint("DistanceX", 2, 2, 24, 3, 9.0818),
    Sketcher.Constraint("DistanceY", 26, 3, 35, 2, 6.2222),
    Sketcher.Constraint("DistanceX", -1, 1, 24, 3, Q("13.6407 in")),
    Sketcher.Constraint("DistanceX", -1, 1, 27, 3, Q("12.1993 in")),
])
sketch3.setExpression("Constraints[106]", "Params.sketch3_diameter")
pocket2 = body.newObject("PartDesign::Pocket", "Pocket001")
pocket2.Profile = sketch3
pocket2.setExpression("Length", "Params.pocket2_length")

doc.recompute()
